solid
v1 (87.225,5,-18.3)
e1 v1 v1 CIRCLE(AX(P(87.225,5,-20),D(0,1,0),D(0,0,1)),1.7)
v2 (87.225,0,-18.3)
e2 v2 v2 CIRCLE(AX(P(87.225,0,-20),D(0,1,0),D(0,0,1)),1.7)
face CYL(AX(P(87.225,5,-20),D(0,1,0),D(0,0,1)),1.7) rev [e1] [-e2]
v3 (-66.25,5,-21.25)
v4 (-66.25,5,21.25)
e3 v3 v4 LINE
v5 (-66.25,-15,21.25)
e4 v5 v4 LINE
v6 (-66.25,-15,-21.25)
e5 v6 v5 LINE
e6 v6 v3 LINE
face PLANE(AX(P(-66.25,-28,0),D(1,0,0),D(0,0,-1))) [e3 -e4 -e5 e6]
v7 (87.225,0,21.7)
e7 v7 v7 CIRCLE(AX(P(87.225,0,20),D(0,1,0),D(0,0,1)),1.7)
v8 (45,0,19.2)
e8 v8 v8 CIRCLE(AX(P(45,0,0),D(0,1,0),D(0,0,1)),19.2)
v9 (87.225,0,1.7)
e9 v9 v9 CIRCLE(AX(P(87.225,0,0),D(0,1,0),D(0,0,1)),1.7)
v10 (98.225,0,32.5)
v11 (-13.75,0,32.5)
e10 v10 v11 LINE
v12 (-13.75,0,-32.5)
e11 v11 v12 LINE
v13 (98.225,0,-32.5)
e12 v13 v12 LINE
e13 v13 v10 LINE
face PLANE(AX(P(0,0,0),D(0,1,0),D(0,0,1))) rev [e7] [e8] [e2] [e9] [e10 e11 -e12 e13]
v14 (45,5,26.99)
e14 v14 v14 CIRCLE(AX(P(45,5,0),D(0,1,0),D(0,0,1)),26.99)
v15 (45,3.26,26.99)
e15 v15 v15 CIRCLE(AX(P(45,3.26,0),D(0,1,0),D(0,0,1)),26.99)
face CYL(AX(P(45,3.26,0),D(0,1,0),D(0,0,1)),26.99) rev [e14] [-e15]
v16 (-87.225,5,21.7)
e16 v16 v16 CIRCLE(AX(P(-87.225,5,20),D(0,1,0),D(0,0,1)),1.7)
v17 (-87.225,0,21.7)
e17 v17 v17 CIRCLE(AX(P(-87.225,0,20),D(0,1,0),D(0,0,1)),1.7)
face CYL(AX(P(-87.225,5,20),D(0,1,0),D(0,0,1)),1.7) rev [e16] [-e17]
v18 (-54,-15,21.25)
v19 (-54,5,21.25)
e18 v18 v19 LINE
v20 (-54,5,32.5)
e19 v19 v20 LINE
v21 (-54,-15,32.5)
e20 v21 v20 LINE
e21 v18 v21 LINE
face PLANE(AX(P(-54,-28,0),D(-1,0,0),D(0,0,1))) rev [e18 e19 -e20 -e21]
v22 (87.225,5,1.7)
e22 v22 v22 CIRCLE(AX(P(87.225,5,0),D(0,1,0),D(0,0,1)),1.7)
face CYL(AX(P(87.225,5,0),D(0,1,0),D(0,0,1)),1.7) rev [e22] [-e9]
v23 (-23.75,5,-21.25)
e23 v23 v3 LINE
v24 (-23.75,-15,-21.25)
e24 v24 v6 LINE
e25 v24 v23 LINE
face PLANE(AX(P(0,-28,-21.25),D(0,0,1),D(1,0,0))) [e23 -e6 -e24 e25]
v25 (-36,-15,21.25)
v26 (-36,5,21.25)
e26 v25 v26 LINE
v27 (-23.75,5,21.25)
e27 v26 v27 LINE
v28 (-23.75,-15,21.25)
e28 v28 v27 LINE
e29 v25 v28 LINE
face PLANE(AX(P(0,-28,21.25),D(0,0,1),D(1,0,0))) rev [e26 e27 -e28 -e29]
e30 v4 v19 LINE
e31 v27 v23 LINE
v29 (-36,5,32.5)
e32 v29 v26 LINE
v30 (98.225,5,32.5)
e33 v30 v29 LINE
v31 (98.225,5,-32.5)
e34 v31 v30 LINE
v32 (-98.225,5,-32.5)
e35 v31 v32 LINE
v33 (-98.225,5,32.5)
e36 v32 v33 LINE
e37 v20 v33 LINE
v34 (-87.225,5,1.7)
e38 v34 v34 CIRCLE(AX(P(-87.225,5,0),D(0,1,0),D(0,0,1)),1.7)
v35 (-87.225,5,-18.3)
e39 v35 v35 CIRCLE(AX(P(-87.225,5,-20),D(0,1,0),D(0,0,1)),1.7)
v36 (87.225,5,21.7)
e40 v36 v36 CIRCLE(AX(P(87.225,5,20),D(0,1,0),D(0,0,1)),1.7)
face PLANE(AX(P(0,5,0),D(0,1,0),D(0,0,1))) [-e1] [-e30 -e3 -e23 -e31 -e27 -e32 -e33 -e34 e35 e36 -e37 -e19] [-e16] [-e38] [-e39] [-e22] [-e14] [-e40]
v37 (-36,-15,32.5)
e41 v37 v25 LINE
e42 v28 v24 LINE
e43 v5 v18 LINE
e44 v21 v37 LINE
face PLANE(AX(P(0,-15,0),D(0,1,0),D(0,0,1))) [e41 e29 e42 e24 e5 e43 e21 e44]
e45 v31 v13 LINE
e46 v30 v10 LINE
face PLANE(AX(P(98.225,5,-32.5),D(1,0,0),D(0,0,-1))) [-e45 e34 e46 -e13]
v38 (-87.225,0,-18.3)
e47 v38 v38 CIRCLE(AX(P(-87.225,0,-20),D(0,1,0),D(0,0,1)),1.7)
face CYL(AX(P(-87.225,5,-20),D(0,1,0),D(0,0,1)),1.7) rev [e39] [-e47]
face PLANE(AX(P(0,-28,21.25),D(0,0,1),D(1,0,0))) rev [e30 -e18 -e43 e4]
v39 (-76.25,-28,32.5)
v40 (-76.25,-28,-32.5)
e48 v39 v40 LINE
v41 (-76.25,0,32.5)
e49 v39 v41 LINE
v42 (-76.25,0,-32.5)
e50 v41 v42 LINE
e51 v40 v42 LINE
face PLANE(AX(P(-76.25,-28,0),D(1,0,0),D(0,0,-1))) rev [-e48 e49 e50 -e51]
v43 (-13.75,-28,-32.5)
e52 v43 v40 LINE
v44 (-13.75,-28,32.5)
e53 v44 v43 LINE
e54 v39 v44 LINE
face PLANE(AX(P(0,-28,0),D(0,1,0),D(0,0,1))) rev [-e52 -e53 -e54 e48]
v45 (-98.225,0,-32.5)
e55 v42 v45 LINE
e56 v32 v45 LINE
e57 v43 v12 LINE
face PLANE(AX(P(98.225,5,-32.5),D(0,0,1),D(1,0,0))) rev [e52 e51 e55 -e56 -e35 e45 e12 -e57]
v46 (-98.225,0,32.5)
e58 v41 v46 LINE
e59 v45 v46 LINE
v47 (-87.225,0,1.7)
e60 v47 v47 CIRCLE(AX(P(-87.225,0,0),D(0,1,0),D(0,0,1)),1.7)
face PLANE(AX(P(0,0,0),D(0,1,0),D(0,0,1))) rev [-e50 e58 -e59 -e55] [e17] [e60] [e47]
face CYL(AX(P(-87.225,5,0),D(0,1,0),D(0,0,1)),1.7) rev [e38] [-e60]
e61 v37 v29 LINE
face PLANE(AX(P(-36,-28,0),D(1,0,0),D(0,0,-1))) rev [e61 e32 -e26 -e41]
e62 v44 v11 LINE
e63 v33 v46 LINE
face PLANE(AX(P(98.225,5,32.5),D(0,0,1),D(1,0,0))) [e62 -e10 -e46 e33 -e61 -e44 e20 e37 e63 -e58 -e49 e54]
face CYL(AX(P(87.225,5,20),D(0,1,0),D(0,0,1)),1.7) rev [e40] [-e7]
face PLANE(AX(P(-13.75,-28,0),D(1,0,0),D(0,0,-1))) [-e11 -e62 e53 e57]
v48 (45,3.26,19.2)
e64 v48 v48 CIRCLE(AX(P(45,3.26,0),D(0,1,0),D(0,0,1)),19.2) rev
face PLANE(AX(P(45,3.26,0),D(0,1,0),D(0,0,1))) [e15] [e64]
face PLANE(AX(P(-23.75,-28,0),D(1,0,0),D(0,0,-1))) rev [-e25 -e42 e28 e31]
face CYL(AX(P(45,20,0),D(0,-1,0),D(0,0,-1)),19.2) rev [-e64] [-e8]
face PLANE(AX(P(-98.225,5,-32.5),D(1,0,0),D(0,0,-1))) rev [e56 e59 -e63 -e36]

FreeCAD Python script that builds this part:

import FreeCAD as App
import Part
import Sketcher
Q = App.Units.Quantity


def add_polygon(sketch, points):
    """Adds a closed chain of lines whose ends are joined by coincident constraints."""
    first, n = sketch.GeometryCount, len(points)
    for a, b in zip(points, points[1:] + points[:1]):
        sketch.addGeometry(Part.LineSegment(App.Vector(*a, 0), App.Vector(*b, 0)), False)
    for i in range(n):
        sketch.addConstraint(Sketcher.Constraint("Coincident", first + i, 2, first + (i + 1) % n, 1))

doc = App.newDocument("Part")
body = doc.addObject("PartDesign::Body", "Body")

sketch1 = body.newObject("Sketcher::SketchObject", "Sketch")
sketch1.AttachmentSupport = (doc.getObject("XZ_Plane"), [""])
sketch1.MapMode = "FlatFace"
add_polygon(sketch1, [(-98, -32), (-98, 32), (98, 32), (98, -32)])
sketch1.addConstraint(Sketcher.Constraint("Vertical", 0))
sketch1.addConstraint(Sketcher.Constraint("Horizontal", 1))
sketch1.addConstraint(Sketcher.Constraint("Vertical", 2))
sketch1.addConstraint(Sketcher.Constraint("Horizontal", 3))
sketch1.addConstraint(Sketcher.Constraint("Symmetric", 0, 2, 2, 2, -1, 1))
sketch1.addConstraint(Sketcher.Constraint("DistanceY", 0, 1, 0, 2, Q("65 mm")))
sketch1.addConstraint(Sketcher.Constraint("DistanceX", 1, 1, 1, 2, Q("196.45 mm")))
pad1 = body.newObject("PartDesign::Pad", "Pad")
pad1.Profile = sketch1
pad1.Length = 5
pad1.Reversed = True

sketch2 = body.newObject("Sketcher::SketchObject", "Sketch001")
sketch2.AttachmentSupport = (doc.getObject("XZ_Plane"), [""])
sketch2.MapMode = "FlatFace"
add_polygon(sketch2, [(-36, 21), (-36, 32), (-14, 32), (-14, -32), (-76, -32), (-76, 32), (-54, 32), (-54, 21), (-66, 21), (-66, -21), (-24, -21), (-24, 21)])
sketch2.addConstraint(Sketcher.Constraint("Vertical", 0))
sketch2.addConstraint(Sketcher.Constraint("Horizontal", 1))
sketch2.addConstraint(Sketcher.Constraint("Vertical", 2))
sketch2.addConstraint(Sketcher.Constraint("Horizontal", 3))
sketch2.addConstraint(Sketcher.Constraint("Vertical", 4))
sketch2.addConstraint(Sketcher.Constraint("Horizontal", 5))
sketch2.addConstraint(Sketcher.Constraint("Vertical", 6))
sketch2.addConstraint(Sketcher.Constraint("Horizontal", 7))
sketch2.addConstraint(Sketcher.Constraint("Vertical", 8))
sketch2.addConstraint(Sketcher.Constraint("Horizontal", 9))
sketch2.addConstraint(Sketcher.Constraint("Vertical", 10))
sketch2.addConstraint(Sketcher.Constraint("Horizontal", 11))
sketch2.addConstraint(Sketcher.Constraint("Horizontal", 1, 2, 4, 2))
sketch2.addConstraint(Sketcher.Constraint("Horizontal", 7, 2, 10, 2))
sketch2.addConstraint(Sketcher.Constraint("Equal", 1, 5))
sketch2.addConstraint(Sketcher.Constraint("Equal", 7, 11))
sketch2.addConstraint(Sketcher.Constraint("Equal", 9, 8))
sketch2.addConstraint(Sketcher.Constraint("DistanceY", 2, 2, 2, 1, Q("65 mm")))
sketch2.addConstraint(Sketcher.Constraint("DistanceX", 3, 2, 3, 1, Q("62.5 mm")))
sketch2.addConstraint(Sketcher.Constraint("DistanceX", 9, 1, 9, 2, Q("42.5 mm")))
sketch2.addConstraint(Sketcher.Constraint("DistanceX", 0, 2, -1, 1, Q("36 mm")))
sketch2.addConstraint(Sketcher.Constraint("DistanceX", 5, 2, -1, 1, Q("54 mm")))
sketch2.addConstraint(Sketcher.Constraint("DistanceY", 0, 1, 0, 2, Q("11.25 mm")))
sketch2.addConstraint(Sketcher.Constraint("DistanceY", -1, 1, 0, 2, Q("32.5 mm")))
pad2 = body.newObject("PartDesign::Pad", "Pad001")
pad2.Profile = sketch2
pad2.Length = 28

sketch3 = body.newObject("Sketcher::SketchObject", "Sketch002")
sketch3.AttachmentSupport = (doc.getObject("XZ_Plane"), [""])
sketch3.MapMode = "FlatFace"
sketch3.AttachmentOffset = App.Placement(App.Vector(0, 0, 28), App.Rotation())
add_polygon(sketch3, [(-36, 21), (-36, 32), (-54, 32), (-54, 21), (-66, 21), (-66, -21), (-24, -21), (-24, 21)])
sketch3.addConstraint(Sketcher.Constraint("Vertical", 0))
sketch3.addConstraint(Sketcher.Constraint("Horizontal", 1))
sketch3.addConstraint(Sketcher.Constraint("Vertical", 2))
sketch3.addConstraint(Sketcher.Constraint("Horizontal", 3))
sketch3.addConstraint(Sketcher.Constraint("Vertical", 4))
sketch3.addConstraint(Sketcher.Constraint("Horizontal", 5))
sketch3.addConstraint(Sketcher.Constraint("Vertical", 6))
sketch3.addConstraint(Sketcher.Constraint("Horizontal", 7))
sketch3.addConstraint(Sketcher.Constraint("Horizontal", 3, 2, 6, 2))
sketch3.addConstraint(Sketcher.Constraint("Equal", 3, 7))
sketch3.addConstraint(Sketcher.Constraint("Equal", 5, 4))
sketch3.addConstraint(Sketcher.Constraint("DistanceX", 1, 2, 1, 1, Q("18 mm")))
sketch3.addConstraint(Sketcher.Constraint("DistanceX", 5, 1, 5, 2, Q("42.5 mm")))
sketch3.addConstraint(Sketcher.Constraint("DistanceX", 0, 2, -1, 1, Q("36 mm")))
sketch3.addConstraint(Sketcher.Constraint("DistanceY", 0, 1, 0, 2, Q("11.25 mm")))
sketch3.addConstraint(Sketcher.Constraint("DistanceY", -1, 1, 0, 2, Q("32.5 mm")))
pad3 = body.newObject("PartDesign::Pad", "Pad002")
pad3.Profile = sketch3
pad3.Length = 20
pad3.Reversed = True

sketch4 = body.newObject("Sketcher::SketchObject", "Sketch003")
sketch4.AttachmentSupport = (doc.getObject("XZ_Plane"), [""])
sketch4.MapMode = "FlatFace"
sketch4.AttachmentOffset = App.Placement(App.Vector(0, 0, -5), App.Rotation())
add_polygon(sketch4, [(-36, 21), (-36, 32), (-54, 32), (-54, 21), (-66, 21), (-66, -21), (-24, -21), (-24, 21)])
sketch4.addConstraint(Sketcher.Constraint("Vertical", 0))
sketch4.addConstraint(Sketcher.Constraint("Horizontal", 1))
sketch4.addConstraint(Sketcher.Constraint("Vertical", 2))
sketch4.addConstraint(Sketcher.Constraint("Horizontal", 3))
sketch4.addConstraint(Sketcher.Constraint("Vertical", 4))
sketch4.addConstraint(Sketcher.Constraint("Horizontal", 5))
sketch4.addConstraint(Sketcher.Constraint("Vertical", 6))
sketch4.addConstraint(Sketcher.Constraint("Horizontal", 7))
sketch4.addConstraint(Sketcher.Constraint("Horizontal", 3, 2, 6, 2))
sketch4.addConstraint(Sketcher.Constraint("Equal", 3, 7))
sketch4.addConstraint(Sketcher.Constraint("Equal", 5, 4))
sketch4.addConstraint(Sketcher.Constraint("DistanceX", 1, 2, 1, 1, Q("18 mm")))
sketch4.addConstraint(Sketcher.Constraint("DistanceX", 5, 1, 5, 2, Q("42.5 mm")))
sketch4.addConstraint(Sketcher.Constraint("DistanceX", 0, 2, -1, 1, Q("36 mm")))
sketch4.addConstraint(Sketcher.Constraint("DistanceY", 0, 1, 0, 2, Q("11.25 mm")))
sketch4.addConstraint(Sketcher.Constraint("DistanceY", -1, 1, 0, 2, Q("32.5 mm")))
pocket1 = body.newObject("PartDesign::Pocket", "Pocket")
pocket1.Profile = sketch4
pocket1.Length = 20
pocket1.Reversed = True

sketch5 = body.newObject("Sketcher::SketchObject", "Sketch004")
sketch5.AttachmentSupport = (doc.getObject("XZ_Plane"), [""])
sketch5.MapMode = "FlatFace"
sketch5.AttachmentOffset = App.Placement(App.Vector(0, 0, -5), App.Rotation())
sketch5.addGeometry(Part.Circle(App.Vector(45, 0, 0), App.Vector(0, 0, 1), 27), False)
sketch5.addConstraint(Sketcher.Constraint("PointOnObject", 0, 3, -1))
sketch5.addConstraint(Sketcher.Constraint("Diameter", 0, Q("53.98 mm")))
sketch5.addConstraint(Sketcher.Constraint("DistanceX", -1, 1, 0, 3, Q("45 mm")))
pocket2 = body.newObject("PartDesign::Pocket", "Pocket001")
pocket2.Profile = sketch5
pocket2.Length = 1.74
pocket2.Reversed = True

sketch6 = body.newObject("Sketcher::SketchObject", "Sketch005")
sketch6.AttachmentSupport = (doc.getObject("XZ_Plane"), [""])
sketch6.MapMode = "FlatFace"
sketch6.addGeometry(Part.Circle(App.Vector(45, 0, 0), App.Vector(0, 0, 1), 19), False)
sketch6.addConstraint(Sketcher.Constraint("PointOnObject", 0, 3, -1))
sketch6.addConstraint(Sketcher.Constraint("Diameter", 0, Q("38.4 mm")))
sketch6.addConstraint(Sketcher.Constraint("DistanceX", -1, 1, 0, 3, Q("45 mm")))
pocket3 = body.newObject("PartDesign::Pocket", "Pocket002")
pocket3.Profile = sketch6
pocket3.Length = 20

sketch7 = body.newObject("Sketcher::SketchObject", "Sketch006")
sketch7.AttachmentSupport = (doc.getObject("XZ_Plane"), [""])
sketch7.MapMode = "FlatFace"
sketch7.AttachmentOffset = App.Placement(App.Vector(0, 0, -5), App.Rotation())
sketch7.addGeometry(Part.Circle(App.Vector(-87.2, -20, 0), App.Vector(0, 0, 1), 1.7), False)
sketch7.addGeometry(Part.Circle(App.Vector(-87.2, 0, 0), App.Vector(0, 0, 1), 1.7), False)
sketch7.addGeometry(Part.Circle(App.Vector(-87.2, 20, 0), App.Vector(0, 0, 1), 1.7), False)
sketch7.addGeometry(Part.Circle(App.Vector(87.2, 20, 0), App.Vector(0, 0, 1), 1.7), False)
sketch7.addGeometry(Part.Circle(App.Vector(87.2, 0, 0), App.Vector(0, 0, 1), 1.7), False)
sketch7.addGeometry(Part.Circle(App.Vector(87.2, -20, 0), App.Vector(0, 0, 1), 1.7), False)
sketch7.addConstraint(Sketcher.Constraint("Equal", 0, 1))
sketch7.addConstraint(Sketcher.Constraint("Equal", 1, 2))
sketch7.addConstraint(Sketcher.Constraint("Equal", 2, 3))
sketch7.addConstraint(Sketcher.Constraint("Equal", 3, 4))
sketch7.addConstraint(Sketcher.Constraint("Equal", 4, 5))
sketch7.addConstraint(Sketcher.Constraint("Symmetric", 0, 3, 3, 3, -1, 1))
sketch7.addConstraint(Sketcher.Constraint("Symmetric", 1, 3, 4, 3, -1, 1))
sketch7.addConstraint(Sketcher.Constraint("Symmetric", 2, 3, 5, 3, -1, 1))
sketch7.addConstraint(Sketcher.Constraint("Symmetric", 2, 3, 3, 3, -2))
sketch7.addConstraint(Sketcher.Constraint("PointOnObject", 1, 3, -1))
sketch7.addConstraint(Sketcher.Constraint("Vertical", 0, 3, 1, 3))
sketch7.addConstraint(Sketcher.Constraint("Diameter", 0, Q("3.4 mm")))
sketch7.addConstraint(Sketcher.Constraint("DistanceY", 0, 3, -1, 1, Q("20 mm")))
sketch7.addConstraint(Sketcher.Constraint("DistanceX", 2, 3, 3, 3, Q("174.45 mm")))
doc.recompute()
hole = body.newObject("PartDesign::Hole", "Hole")
hole.Profile = sketch7
hole.ThreadType = "None"
hole.Diameter = 3.4
hole.DepthType = "ThroughAll"
hole.Reversed = True

doc.recompute()
